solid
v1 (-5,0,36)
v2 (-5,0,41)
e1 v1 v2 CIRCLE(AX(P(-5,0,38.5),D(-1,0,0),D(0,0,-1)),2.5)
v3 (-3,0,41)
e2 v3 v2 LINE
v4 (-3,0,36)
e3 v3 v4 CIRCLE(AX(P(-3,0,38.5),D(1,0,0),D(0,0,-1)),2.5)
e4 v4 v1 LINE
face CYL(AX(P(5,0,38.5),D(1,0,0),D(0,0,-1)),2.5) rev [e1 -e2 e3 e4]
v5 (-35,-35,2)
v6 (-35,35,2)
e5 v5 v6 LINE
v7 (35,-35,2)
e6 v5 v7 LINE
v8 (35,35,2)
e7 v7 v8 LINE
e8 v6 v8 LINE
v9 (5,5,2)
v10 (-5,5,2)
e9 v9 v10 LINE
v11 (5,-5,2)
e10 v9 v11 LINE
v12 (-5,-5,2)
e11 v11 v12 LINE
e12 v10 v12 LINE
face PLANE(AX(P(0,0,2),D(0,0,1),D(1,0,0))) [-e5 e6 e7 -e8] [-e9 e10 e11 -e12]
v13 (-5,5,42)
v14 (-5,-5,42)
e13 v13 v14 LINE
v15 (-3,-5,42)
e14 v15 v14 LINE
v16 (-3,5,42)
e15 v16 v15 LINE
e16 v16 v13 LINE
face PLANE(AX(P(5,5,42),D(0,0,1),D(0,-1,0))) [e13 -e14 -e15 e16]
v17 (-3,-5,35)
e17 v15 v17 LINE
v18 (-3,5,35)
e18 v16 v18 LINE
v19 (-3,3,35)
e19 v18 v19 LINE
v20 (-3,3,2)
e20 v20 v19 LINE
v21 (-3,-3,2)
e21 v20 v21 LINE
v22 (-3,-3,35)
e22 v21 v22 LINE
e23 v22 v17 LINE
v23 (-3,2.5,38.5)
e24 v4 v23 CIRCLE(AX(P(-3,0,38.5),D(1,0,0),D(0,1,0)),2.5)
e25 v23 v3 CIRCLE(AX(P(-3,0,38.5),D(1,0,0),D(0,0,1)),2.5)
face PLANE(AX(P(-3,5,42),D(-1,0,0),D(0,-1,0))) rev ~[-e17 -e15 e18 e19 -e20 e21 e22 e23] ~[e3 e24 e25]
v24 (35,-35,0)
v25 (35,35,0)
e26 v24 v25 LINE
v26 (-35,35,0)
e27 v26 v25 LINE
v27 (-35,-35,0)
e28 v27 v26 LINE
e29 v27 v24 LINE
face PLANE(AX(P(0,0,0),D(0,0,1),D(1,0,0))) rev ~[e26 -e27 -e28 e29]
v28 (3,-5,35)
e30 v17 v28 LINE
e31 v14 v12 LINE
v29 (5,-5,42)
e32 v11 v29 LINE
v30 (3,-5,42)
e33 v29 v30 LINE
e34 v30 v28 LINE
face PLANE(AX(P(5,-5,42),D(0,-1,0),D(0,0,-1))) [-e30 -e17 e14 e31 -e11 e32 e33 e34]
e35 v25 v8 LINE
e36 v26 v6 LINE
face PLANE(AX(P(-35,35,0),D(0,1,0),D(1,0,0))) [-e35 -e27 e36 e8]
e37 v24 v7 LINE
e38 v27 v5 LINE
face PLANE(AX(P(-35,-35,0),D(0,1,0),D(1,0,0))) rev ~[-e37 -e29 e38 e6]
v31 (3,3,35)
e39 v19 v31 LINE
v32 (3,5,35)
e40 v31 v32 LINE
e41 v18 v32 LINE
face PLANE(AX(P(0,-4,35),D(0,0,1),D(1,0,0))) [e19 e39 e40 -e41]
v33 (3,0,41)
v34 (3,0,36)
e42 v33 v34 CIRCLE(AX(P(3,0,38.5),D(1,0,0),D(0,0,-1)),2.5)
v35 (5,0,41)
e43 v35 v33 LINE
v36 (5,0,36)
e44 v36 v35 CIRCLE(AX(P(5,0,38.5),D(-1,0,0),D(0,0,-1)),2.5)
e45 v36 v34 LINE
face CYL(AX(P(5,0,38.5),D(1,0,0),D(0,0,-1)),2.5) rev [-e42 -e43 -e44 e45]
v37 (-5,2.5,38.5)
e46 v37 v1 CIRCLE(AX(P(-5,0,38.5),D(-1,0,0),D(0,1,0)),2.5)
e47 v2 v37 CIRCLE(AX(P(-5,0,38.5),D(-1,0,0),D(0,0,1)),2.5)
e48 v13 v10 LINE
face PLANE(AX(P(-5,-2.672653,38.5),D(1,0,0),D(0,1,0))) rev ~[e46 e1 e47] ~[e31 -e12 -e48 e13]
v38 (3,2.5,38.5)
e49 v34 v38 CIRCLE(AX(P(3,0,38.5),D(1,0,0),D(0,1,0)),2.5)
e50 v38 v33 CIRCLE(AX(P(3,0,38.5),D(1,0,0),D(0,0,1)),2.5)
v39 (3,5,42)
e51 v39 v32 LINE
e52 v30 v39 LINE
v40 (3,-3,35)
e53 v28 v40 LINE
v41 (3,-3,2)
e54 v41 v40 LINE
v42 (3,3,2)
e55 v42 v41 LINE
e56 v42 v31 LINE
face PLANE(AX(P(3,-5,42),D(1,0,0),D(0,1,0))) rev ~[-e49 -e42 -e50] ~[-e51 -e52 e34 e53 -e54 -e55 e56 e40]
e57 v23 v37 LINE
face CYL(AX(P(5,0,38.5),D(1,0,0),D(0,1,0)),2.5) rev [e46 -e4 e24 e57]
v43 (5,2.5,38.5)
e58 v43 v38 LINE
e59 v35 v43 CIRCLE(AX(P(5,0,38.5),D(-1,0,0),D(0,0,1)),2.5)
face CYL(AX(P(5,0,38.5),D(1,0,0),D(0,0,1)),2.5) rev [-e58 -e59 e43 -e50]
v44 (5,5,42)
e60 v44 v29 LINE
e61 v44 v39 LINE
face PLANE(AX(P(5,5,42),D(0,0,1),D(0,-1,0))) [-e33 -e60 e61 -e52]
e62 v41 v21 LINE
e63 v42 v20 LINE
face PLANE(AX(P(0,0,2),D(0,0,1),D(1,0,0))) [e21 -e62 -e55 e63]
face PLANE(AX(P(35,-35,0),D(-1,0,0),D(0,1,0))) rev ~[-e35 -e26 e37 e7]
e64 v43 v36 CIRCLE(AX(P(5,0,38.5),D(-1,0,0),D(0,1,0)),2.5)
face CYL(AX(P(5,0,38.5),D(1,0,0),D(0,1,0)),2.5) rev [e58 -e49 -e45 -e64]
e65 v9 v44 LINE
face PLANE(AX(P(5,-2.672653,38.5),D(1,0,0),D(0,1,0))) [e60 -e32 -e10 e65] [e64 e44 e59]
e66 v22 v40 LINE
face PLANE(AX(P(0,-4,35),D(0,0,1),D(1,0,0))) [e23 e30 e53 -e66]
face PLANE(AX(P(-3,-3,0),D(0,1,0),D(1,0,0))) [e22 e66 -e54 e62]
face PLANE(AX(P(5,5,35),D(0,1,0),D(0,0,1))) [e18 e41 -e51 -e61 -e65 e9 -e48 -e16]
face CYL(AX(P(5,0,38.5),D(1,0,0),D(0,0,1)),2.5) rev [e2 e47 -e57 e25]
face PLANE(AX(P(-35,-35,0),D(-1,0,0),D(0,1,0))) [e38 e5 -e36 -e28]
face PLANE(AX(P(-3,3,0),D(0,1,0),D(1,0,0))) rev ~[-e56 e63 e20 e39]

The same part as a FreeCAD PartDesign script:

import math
import FreeCAD as App
import Part
import Sketcher

V = App.Vector
Q = App.Units.Quantity

doc = App.newDocument("Part")
body = doc.addObject("PartDesign::Body", "Body")

# Sketch on XY plane
sketch1 = body.newObject("Sketcher::SketchObject", "Sketch")
sketch1.AttachmentSupport = (doc.getObject("XY_Plane"), [""])
sketch1.MapMode = "FlatFace"
sketch1.addGeometry([
    Part.LineSegment(V(-35, 35, 0), V(-35, -35, 0)),
    Part.LineSegment(V(-35, -35, 0), V(35, -35, 0)),
    Part.LineSegment(V(35, -35, 0), V(35, 35, 0)),
    Part.LineSegment(V(35, 35, 0), V(-35, 35, 0)),
], False)
sketch1.addConstraint([
    Sketcher.Constraint("Coincident", 0, 2, 1, 1),
    Sketcher.Constraint("Coincident", 1, 2, 2, 1),
    Sketcher.Constraint("Coincident", 2, 2, 3, 1),
    Sketcher.Constraint("Coincident", 3, 2, 0, 1),
    Sketcher.Constraint("Vertical", 0),
    Sketcher.Constraint("Horizontal", 1),
    Sketcher.Constraint("Vertical", 2),
    Sketcher.Constraint("Horizontal", 3),
    Sketcher.Constraint("Symmetric", 0, 2, 2, 2, -1, 1),
    Sketcher.Constraint("Equal", 3, 0),
    Sketcher.Constraint("DistanceX", 1, 1, 1, 2, Q("70 mm")),
])
pad1 = body.newObject("PartDesign::Pad", "Pad")
pad1.Profile = sketch1
pad1.Length = 2

# Sketch on XY plane
sketch2 = body.newObject("Sketcher::SketchObject", "Sketch001")
sketch2.AttachmentSupport = (doc.getObject("XY_Plane"), [""])
sketch2.MapMode = "FlatFace"
sketch2.addGeometry([
    Part.LineSegment(V(-5, 5, 0), V(-5, -5, 0)),  # 0
    Part.LineSegment(V(-5, -5, 0), V(5, -5, 0)),  # 1
    Part.LineSegment(V(5, -5, 0), V(5, 5, 0)),  # 2
    Part.LineSegment(V(5, 5, 0), V(-5, 5, 0)),  # 3
    Part.LineSegment(V(3, -3, 0), V(-3, -3, 0)),  # 4
    Part.LineSegment(V(-3, -3, 0), V(-3, 3, 0)),  # 5
    Part.LineSegment(V(-3, 3, 0), V(3, 3, 0)),  # 6
    Part.LineSegment(V(3, 3, 0), V(3, -3, 0)),  # 7
], False)
sketch2.addConstraint([
    Sketcher.Constraint("Coincident", 0, 2, 1, 1),
    Sketcher.Constraint("Coincident", 1, 2, 2, 1),
    Sketcher.Constraint("Coincident", 2, 2, 3, 1),
    Sketcher.Constraint("Coincident", 3, 2, 0, 1),
    Sketcher.Constraint("Coincident", 4, 2, 5, 1),
    Sketcher.Constraint("Coincident", 5, 2, 6, 1),
    Sketcher.Constraint("Coincident", 6, 2, 7, 1),
    Sketcher.Constraint("Coincident", 7, 2, 4, 1),
    Sketcher.Constraint("Vertical", 0),
    Sketcher.Constraint("Horizontal", 1),
    Sketcher.Constraint("Vertical", 2),
    Sketcher.Constraint("Horizontal", 3),
    Sketcher.Constraint("Horizontal", 4),
    Sketcher.Constraint("Vertical", 5),
    Sketcher.Constraint("Horizontal", 6),
    Sketcher.Constraint("Vertical", 7),
    Sketcher.Constraint("Symmetric", 0, 2, 2, 2, -1, 1),
    Sketcher.Constraint("Symmetric", 4, 2, 6, 2, -1, 1),
    Sketcher.Constraint("Equal", 3, 0),
    Sketcher.Constraint("Equal", 6, 5),
    Sketcher.Constraint("DistanceX", 1, 1, 1, 2, Q("10 mm")),
    Sketcher.Constraint("DistanceX", 4, 2, 4, 1, Q("6 mm")),
])
pad2 = body.newObject("PartDesign::Pad", "Pad001")
pad2.Profile = sketch2
pad2.Length = 35

# Sketch on YZ plane
sketch3 = body.newObject("Sketcher::SketchObject", "Sketch002")
sketch3.AttachmentSupport = (doc.getObject("YZ_Plane"), [""])
sketch3.MapMode = "FlatFace"
sketch3.AttachmentOffset = App.Placement(V(0, 0, 5), App.Rotation())
sketch3.addGeometry([
    Part.LineSegment(V(-5, 42, 0), V(-5, 35, 0)),  # 0
    Part.LineSegment(V(-5, 35, 0), V(5, 35, 0)),  # 1
    Part.LineSegment(V(5, 35, 0), V(5, 42, 0)),  # 2
    Part.LineSegment(V(5, 42, 0), V(-5, 42, 0)),  # 3
    Part.ArcOfCircle(Part.Circle(V(0, 38.5, 0), V(0, 0, 1), 2.5), math.radians(90), math.radians(270)),  # 4
    Part.ArcOfCircle(Part.Circle(V(0, 38.5, 0), V(0, 0, 1), 2.5), math.radians(0), math.radians(90)),  # 5
    Part.ArcOfCircle(Part.Circle(V(0, 38.5, 0), V(0, 0, 1), 2.5), math.radians(-90), math.radians(0)),  # 6
], False)
sketch3.addConstraint([
    Sketcher.Constraint("Coincident", 0, 2, 1, 1),
    Sketcher.Constraint("Coincident", 1, 2, 2, 1),
    Sketcher.Constraint("Coincident", 2, 2, 3, 1),
    Sketcher.Constraint("Coincident", 3, 2, 0, 1),
    Sketcher.Constraint("Tangent", 4, 1, 5, 2),
    Sketcher.Constraint("Tangent", 5, 1, 6, 2),
    Sketcher.Constraint("Tangent", 6, 1, 4, 2),
    Sketcher.Constraint("Vertical", 0),
    Sketcher.Constraint("Horizontal", 1),
    Sketcher.Constraint("Vertical", 2),
    Sketcher.Constraint("Horizontal", 3),
    Sketcher.Constraint("PointOnObject", 4, 3, -2),
    Sketcher.Constraint("PointOnObject", 4, 1, -2),
    Sketcher.Constraint("PointOnObject", 6, 1, -2),
    Sketcher.Constraint("Horizontal", 6, 3, 5, 1),
    Sketcher.Constraint("Radius", 4, Q("2.5 mm")),
    Sketcher.Constraint("DistanceX", 1, 1, 1, 2, Q("10 mm")),
    Sketcher.Constraint("DistanceY", 0, 2, 0, 1, Q("7 mm")),
    Sketcher.Constraint("DistanceX", 0, 2, -1, 1, Q("5 mm")),
    Sketcher.Constraint("DistanceY", -1, 1, 0, 2, Q("35 mm")),
    Sketcher.Constraint("DistanceY", -1, 1, 4, 1, Q("41 mm")),
])
pad3 = body.newObject("PartDesign::Pad", "Pad002")
pad3.Profile = sketch3
pad3.Length = 10
pad3.Reversed = True

# Sketch on XY plane
sketch4 = body.newObject("Sketcher::SketchObject", "Sketch003")
sketch4.AttachmentSupport = (doc.getObject("XY_Plane"), [""])
sketch4.MapMode = "FlatFace"
sketch4.AttachmentOffset = App.Placement(V(0, 0, 42), App.Rotation())
sketch4.addGeometry([
    Part.LineSegment(V(-3, -5, 0), V(3, -5, 0)),
    Part.LineSegment(V(3, -5, 0), V(3, 5, 0)),
    Part.LineSegment(V(3, 5, 0), V(-3, 5, 0)),
    Part.LineSegment(V(-3, 5, 0), V(-3, -5, 0)),
], False)
sketch4.addConstraint([
    Sketcher.Constraint("Coincident", 0, 2, 1, 1),
    Sketcher.Constraint("Coincident", 1, 2, 2, 1),
    Sketcher.Constraint("Coincident", 2, 2, 3, 1),
    Sketcher.Constraint("Coincident", 3, 2, 0, 1),
    Sketcher.Constraint("Horizontal", 0),
    Sketcher.Constraint("Vertical", 1),
    Sketcher.Constraint("Horizontal", 2),
    Sketcher.Constraint("Vertical", 3),
    Sketcher.Constraint("Symmetric", 0, 2, 2, 2, -1, 1),
    Sketcher.Constraint("DistanceX", 0, 1, 0, 2, Q("6 mm")),
    Sketcher.Constraint("DistanceY", 1, 1, 1, 2, Q("10 mm")),
])
pocket1 = body.newObject("PartDesign::Pocket", "Pocket")
pocket1.Profile = sketch4
pocket1.Length = 7

doc.recompute()
